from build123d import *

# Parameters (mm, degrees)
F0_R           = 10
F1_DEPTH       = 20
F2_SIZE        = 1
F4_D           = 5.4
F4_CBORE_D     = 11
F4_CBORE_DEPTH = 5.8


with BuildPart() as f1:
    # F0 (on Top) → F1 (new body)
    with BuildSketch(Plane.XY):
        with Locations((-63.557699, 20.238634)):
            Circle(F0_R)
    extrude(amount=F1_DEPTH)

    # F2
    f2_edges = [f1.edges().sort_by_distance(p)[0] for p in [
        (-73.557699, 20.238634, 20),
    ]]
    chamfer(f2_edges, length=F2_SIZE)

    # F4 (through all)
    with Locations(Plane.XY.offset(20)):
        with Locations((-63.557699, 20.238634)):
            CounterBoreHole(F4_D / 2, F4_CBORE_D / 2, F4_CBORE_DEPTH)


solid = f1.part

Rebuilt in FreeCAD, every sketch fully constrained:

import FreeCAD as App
import Part
import Sketcher

V = App.Vector
Q = App.Units.Quantity


def edges_at(feature, points):
    """Names of the edges that pass closest to the given points."""
    edges = feature.Shape.Edges
    near = lambda p: min(range(len(edges)), key=lambda i: edges[i].distToShape(Part.Vertex(*p))[0])
    return sorted({f"Edge{near(p) + 1}" for p in points})

doc = App.newDocument("Part")
body = doc.addObject("PartDesign::Body", "Body")

sketch1 = body.newObject("Sketcher::SketchObject", "Sketch")
sketch1.AttachmentSupport = (doc.getObject("XY_Plane"), [""])
sketch1.MapMode = "FlatFace"
sketch1.addGeometry(Part.Circle(V(-63.557699, 20.238634, 0), V(0, 0, 1), 10), False)
sketch1.addConstraint([
    Sketcher.Constraint("Diameter", 0, Q("20 mm")),
    Sketcher.Constraint("DistanceX", 0, 3, -1, 1, Q("63.557699 mm")),
    Sketcher.Constraint("DistanceY", -1, 1, 0, 3, Q("20.238634 mm")),
])
pad1 = body.newObject("PartDesign::Pad", "Pad")
pad1.Profile = sketch1
pad1.Length = 20
doc.recompute()

chamfer = body.newObject("PartDesign::Chamfer", "Chamfer")
chamfer.Base = (pad1, edges_at(pad1, [(-73.558, 20.239, 20)]))
chamfer.Size = 1

sketch2 = body.newObject("Sketcher::SketchObject", "Sketch001")
sketch2.AttachmentSupport = (doc.getObject("XY_Plane"), [""])
sketch2.MapMode = "FlatFace"
sketch2.AttachmentOffset = App.Placement(V(0, 0, 20), App.Rotation())
sketch2.addGeometry(Part.Circle(V(-63.557699, 20.238634, 0), V(0, 0, 1), 2.7), False)
sketch2.addConstraint([
    Sketcher.Constraint("Diameter", 0, Q("5.4 mm")),
    Sketcher.Constraint("DistanceX", 0, 3, -1, 1, Q("63.557699 mm")),
    Sketcher.Constraint("DistanceY", -1, 1, 0, 3, Q("20.238634 mm")),
])
doc.recompute()
hole = body.newObject("PartDesign::Hole", "Hole")
hole.Profile = sketch2
hole.ThreadType = "None"
hole.Diameter = 5.4
hole.DepthType = "ThroughAll"
hole.HoleCutType = "Counterbore"
hole.HoleCutDiameter = 11
hole.HoleCutDepth = 5.8

doc.recompute()
